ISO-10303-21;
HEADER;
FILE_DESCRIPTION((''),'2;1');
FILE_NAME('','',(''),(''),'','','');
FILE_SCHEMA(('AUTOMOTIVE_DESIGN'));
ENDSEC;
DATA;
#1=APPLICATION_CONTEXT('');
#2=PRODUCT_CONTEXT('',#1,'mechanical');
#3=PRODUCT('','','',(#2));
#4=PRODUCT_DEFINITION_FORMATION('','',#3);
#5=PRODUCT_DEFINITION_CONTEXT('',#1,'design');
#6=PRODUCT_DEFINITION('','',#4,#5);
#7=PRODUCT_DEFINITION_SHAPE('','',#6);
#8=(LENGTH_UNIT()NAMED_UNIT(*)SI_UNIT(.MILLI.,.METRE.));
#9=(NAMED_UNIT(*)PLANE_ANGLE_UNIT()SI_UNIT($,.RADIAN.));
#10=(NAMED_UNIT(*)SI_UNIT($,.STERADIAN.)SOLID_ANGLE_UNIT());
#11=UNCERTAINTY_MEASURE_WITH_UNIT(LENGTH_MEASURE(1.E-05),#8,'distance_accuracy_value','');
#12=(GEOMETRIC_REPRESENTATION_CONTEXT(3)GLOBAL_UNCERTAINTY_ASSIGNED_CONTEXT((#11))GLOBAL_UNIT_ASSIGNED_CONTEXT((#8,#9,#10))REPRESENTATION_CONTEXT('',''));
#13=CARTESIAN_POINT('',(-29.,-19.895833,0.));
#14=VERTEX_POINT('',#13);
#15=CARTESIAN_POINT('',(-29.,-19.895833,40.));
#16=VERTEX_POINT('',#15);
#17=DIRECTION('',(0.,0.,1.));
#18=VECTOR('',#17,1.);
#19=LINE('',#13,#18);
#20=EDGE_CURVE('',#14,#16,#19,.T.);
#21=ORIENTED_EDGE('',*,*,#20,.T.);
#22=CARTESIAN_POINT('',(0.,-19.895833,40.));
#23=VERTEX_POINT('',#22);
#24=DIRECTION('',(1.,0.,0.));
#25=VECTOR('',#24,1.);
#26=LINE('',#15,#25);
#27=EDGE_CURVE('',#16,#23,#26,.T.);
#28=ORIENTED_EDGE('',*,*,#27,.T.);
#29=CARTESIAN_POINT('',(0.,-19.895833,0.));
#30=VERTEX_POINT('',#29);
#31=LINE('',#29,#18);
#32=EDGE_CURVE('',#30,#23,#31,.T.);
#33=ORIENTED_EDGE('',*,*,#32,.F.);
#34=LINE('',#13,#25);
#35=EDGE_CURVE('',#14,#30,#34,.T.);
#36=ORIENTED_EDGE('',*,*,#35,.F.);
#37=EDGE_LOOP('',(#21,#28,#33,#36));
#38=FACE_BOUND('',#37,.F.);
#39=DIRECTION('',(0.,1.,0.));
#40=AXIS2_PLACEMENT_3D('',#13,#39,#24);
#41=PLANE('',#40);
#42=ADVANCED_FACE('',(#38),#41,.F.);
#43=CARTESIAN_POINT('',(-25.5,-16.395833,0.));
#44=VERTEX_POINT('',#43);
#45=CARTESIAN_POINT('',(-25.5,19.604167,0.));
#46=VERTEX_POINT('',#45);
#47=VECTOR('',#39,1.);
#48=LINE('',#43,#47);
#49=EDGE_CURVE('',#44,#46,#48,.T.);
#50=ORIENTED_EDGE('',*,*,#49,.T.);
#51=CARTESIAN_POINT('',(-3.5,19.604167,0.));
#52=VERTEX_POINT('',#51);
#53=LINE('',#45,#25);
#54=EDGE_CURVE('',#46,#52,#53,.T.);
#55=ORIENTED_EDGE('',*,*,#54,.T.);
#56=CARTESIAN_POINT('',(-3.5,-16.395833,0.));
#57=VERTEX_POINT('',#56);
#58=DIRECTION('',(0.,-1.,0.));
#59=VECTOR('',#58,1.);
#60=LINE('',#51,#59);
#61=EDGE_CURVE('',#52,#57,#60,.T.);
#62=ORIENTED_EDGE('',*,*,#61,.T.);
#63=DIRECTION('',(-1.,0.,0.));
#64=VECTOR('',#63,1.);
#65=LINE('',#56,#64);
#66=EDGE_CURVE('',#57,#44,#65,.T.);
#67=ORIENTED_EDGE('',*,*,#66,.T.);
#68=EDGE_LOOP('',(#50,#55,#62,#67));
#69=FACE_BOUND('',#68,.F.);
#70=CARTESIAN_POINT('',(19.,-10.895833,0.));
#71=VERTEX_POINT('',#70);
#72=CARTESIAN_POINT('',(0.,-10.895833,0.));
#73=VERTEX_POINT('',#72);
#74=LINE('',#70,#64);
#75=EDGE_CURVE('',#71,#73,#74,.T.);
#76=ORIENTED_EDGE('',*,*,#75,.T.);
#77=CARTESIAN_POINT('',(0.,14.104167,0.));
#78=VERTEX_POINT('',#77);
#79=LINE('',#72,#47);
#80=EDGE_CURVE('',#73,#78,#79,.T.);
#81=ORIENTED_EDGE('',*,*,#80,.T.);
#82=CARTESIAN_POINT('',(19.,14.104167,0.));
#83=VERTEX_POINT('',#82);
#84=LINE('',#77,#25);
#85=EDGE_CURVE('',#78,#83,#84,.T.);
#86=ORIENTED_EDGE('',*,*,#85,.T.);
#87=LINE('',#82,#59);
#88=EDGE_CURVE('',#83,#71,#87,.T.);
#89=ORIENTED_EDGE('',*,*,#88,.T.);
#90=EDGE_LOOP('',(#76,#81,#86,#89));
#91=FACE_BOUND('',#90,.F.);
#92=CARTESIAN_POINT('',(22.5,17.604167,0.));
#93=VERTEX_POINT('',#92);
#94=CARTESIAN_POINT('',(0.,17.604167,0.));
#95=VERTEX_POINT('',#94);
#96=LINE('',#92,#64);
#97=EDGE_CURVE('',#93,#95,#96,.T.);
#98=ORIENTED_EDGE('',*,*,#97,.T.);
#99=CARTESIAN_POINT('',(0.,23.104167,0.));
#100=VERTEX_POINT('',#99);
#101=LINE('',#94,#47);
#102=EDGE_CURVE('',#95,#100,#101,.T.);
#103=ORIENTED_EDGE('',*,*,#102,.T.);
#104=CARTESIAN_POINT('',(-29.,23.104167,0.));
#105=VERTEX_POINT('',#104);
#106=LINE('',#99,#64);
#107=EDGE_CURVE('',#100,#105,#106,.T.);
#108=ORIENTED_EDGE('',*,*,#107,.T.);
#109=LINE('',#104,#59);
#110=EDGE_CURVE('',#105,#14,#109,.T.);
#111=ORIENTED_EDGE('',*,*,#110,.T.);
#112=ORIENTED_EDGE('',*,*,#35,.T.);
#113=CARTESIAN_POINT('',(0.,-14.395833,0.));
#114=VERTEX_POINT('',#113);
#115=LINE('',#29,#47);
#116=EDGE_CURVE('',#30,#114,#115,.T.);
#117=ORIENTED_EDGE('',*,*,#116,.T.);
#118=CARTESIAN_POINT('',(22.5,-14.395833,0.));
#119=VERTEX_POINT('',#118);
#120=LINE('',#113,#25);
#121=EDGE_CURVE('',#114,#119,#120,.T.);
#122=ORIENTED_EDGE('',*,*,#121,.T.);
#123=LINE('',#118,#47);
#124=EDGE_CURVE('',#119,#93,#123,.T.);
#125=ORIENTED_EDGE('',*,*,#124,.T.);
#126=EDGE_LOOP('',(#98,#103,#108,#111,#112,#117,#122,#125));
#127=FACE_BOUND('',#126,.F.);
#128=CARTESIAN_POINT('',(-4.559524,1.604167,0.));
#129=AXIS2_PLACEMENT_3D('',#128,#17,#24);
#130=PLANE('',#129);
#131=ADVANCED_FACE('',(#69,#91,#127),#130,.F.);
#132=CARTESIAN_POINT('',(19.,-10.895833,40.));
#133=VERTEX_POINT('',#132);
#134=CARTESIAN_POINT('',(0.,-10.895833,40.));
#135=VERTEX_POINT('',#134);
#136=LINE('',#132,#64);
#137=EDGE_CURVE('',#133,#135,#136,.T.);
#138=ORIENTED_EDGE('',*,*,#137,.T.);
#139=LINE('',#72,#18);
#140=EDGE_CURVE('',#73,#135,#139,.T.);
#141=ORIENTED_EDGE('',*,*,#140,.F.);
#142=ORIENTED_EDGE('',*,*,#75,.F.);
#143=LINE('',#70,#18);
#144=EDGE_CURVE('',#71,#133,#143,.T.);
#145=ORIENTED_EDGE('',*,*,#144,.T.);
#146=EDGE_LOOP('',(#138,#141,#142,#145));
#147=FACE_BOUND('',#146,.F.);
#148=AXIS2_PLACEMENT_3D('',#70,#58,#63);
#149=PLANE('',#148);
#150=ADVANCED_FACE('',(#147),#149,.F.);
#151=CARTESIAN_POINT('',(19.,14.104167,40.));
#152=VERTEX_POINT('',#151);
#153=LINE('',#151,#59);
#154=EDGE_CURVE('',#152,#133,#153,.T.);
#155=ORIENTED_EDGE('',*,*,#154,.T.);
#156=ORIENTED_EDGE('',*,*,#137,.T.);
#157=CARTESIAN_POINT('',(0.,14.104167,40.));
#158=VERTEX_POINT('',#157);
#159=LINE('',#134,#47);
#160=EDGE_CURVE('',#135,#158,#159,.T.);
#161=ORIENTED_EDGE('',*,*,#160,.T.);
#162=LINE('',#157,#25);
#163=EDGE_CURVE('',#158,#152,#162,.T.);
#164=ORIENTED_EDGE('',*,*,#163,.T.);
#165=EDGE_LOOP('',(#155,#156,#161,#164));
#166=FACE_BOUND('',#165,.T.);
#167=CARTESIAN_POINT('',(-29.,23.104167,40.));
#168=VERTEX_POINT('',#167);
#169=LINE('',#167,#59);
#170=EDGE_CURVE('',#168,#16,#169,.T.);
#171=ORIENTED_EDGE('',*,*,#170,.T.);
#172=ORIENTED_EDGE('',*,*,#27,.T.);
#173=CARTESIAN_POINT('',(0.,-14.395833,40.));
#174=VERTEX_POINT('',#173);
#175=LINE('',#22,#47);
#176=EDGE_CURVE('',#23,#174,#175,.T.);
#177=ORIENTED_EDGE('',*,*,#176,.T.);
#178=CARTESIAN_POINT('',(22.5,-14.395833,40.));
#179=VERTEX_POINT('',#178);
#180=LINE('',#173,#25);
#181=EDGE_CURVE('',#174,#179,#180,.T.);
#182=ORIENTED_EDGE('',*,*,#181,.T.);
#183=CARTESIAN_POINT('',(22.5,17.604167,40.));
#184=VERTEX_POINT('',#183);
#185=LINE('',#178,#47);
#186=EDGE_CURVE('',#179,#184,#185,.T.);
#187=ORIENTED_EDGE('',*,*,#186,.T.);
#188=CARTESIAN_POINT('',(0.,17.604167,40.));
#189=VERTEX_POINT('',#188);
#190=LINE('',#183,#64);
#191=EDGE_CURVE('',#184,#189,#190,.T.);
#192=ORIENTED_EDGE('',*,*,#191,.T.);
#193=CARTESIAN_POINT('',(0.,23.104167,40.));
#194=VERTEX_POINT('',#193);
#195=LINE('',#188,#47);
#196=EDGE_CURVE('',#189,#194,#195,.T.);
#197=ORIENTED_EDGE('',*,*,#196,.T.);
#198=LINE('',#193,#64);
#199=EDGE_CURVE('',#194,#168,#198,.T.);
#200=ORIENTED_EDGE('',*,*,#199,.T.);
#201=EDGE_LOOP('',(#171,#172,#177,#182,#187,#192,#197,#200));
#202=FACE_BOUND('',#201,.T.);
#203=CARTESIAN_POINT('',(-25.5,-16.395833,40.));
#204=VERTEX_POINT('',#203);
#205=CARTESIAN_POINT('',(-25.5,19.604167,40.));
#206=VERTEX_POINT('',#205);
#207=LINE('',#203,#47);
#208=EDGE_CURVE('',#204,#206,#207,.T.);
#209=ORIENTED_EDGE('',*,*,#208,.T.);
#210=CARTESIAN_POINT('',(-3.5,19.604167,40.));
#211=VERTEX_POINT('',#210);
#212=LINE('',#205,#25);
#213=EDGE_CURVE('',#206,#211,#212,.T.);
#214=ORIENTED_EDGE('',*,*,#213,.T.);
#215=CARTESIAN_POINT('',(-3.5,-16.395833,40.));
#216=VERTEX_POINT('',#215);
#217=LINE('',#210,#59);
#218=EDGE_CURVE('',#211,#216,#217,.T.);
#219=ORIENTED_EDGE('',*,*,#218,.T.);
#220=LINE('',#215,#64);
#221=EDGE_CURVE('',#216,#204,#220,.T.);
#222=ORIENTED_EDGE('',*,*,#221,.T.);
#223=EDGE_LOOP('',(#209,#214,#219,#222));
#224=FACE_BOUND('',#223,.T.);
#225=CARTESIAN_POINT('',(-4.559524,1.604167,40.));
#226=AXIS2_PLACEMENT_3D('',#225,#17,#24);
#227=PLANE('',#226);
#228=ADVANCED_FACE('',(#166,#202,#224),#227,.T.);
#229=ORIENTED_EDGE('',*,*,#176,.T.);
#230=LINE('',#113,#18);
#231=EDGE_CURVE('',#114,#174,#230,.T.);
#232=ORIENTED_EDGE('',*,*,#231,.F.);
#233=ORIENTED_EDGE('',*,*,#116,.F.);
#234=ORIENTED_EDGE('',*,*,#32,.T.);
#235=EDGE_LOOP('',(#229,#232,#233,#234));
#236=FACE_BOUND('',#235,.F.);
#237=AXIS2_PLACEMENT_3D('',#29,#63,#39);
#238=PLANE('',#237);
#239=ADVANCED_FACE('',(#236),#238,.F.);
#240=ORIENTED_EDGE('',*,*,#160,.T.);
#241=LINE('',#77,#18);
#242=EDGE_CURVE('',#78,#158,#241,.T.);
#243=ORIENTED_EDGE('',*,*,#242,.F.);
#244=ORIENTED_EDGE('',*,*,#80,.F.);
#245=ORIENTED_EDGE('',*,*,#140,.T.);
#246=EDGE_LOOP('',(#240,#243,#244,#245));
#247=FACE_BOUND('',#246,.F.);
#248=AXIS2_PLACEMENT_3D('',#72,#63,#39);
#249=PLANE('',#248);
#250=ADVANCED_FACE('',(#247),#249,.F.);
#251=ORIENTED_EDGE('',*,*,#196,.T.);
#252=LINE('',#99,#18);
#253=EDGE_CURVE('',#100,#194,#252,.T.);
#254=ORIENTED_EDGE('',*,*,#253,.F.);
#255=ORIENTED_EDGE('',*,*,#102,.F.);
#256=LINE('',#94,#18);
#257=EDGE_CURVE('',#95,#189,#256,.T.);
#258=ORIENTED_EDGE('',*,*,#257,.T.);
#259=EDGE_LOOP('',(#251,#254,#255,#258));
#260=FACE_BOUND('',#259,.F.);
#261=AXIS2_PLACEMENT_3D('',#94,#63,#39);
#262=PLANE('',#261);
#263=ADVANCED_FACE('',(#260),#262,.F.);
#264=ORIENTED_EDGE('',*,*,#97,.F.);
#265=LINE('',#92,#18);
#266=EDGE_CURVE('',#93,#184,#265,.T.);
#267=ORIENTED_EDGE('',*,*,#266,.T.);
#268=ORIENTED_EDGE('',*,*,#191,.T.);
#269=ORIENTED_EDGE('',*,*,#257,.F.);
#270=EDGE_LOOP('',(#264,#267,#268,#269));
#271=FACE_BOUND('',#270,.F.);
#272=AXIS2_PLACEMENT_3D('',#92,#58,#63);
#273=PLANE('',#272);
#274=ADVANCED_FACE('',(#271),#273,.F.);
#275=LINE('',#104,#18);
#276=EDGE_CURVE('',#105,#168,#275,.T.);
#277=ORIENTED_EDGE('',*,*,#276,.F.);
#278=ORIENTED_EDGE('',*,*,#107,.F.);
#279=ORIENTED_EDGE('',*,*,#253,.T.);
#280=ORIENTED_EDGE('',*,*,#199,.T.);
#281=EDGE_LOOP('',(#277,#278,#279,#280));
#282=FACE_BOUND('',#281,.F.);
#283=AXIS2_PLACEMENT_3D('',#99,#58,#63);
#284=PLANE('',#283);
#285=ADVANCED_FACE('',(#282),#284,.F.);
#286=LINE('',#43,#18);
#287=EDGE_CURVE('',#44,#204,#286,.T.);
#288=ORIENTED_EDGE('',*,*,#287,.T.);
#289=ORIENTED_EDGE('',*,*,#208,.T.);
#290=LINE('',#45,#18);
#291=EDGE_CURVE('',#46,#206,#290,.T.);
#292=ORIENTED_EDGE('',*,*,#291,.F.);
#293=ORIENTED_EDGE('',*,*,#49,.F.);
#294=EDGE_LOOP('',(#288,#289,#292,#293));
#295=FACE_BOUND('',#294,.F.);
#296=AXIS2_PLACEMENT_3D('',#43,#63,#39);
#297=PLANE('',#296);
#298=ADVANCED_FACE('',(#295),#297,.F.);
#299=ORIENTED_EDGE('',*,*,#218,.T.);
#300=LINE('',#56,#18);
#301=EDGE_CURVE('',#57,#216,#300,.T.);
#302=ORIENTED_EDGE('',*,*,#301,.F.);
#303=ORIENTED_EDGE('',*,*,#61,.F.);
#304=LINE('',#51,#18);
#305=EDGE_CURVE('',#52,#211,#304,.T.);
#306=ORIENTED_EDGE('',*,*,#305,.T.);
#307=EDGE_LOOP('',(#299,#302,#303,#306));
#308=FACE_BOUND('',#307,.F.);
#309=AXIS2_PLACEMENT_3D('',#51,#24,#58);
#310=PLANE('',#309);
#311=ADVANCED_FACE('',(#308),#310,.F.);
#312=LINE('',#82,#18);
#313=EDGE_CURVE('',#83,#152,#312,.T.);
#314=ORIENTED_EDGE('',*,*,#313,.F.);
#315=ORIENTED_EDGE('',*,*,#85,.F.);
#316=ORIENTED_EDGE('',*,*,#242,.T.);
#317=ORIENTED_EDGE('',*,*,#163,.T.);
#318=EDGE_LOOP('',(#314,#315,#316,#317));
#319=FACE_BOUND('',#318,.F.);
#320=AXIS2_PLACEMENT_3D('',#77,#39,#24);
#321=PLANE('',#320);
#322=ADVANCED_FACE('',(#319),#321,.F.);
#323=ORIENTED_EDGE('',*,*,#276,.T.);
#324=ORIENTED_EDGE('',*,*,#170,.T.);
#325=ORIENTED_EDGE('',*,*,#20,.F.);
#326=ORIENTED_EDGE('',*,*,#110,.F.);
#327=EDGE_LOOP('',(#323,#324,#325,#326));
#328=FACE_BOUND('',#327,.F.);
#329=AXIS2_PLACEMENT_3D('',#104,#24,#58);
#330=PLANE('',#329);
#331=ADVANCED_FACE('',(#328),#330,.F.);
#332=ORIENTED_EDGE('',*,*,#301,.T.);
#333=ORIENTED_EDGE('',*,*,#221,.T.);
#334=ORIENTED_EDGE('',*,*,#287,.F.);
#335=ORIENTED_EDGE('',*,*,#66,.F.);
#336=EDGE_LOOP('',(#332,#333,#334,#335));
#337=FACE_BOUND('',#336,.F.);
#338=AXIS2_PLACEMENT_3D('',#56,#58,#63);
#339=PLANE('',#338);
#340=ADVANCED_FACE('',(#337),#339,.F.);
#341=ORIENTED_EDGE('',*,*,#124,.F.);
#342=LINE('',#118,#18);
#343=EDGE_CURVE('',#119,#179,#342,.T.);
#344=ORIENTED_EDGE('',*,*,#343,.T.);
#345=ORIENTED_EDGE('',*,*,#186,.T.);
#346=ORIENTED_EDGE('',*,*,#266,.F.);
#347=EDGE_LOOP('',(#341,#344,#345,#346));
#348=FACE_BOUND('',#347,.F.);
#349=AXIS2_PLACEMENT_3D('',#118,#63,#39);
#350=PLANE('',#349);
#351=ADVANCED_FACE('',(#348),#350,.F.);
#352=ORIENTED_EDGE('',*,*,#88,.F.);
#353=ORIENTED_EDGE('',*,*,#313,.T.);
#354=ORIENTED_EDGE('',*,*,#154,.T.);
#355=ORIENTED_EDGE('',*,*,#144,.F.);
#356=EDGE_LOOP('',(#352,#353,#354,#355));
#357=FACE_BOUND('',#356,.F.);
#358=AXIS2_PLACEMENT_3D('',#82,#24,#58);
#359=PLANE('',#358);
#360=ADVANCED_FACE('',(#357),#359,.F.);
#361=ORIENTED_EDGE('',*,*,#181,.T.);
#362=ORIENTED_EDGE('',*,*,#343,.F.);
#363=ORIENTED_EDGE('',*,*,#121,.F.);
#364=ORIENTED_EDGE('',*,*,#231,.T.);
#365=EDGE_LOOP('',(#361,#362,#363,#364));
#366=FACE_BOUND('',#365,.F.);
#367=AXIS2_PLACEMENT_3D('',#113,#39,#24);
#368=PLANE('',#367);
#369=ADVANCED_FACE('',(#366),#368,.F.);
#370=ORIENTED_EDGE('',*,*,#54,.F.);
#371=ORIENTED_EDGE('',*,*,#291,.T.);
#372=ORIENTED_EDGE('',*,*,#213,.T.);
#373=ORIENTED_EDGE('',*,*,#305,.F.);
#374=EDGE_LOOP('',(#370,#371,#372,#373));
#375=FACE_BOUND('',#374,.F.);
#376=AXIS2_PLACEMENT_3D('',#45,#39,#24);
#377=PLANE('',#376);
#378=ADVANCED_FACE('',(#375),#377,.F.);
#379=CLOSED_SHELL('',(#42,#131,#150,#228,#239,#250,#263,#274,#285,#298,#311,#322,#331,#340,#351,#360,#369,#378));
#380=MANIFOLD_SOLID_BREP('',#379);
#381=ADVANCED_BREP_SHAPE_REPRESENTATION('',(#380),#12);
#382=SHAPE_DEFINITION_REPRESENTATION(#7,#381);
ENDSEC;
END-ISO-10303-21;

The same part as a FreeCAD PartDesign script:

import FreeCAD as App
import Part
import Sketcher
from FreeCAD import Vector
Q = App.Units.Quantity

doc = App.newDocument("Part")
body = doc.addObject("PartDesign::Body", "Body")

sketch1 = body.newObject("Sketcher::SketchObject", "Sketch")
sketch1.AttachmentSupport = (doc.getObject("XY_Plane"), [""])
sketch1.MapMode = "FlatFace"
sketch1.addGeometry(Part.LineSegment(Vector(22.5, 17.604167, 0), Vector(0, 17.604167, 0)), False)
sketch1.addGeometry(Part.LineSegment(Vector(0, 17.604167, 0), Vector(0, 23.104167, 0)), False)
sketch1.addGeometry(Part.LineSegment(Vector(0, 23.104167, 0), Vector(-29, 23.104167, 0)), False)
sketch1.addGeometry(Part.LineSegment(Vector(-29, 23.104167, 0), Vector(-29, -19.895833, 0)), False)
sketch1.addGeometry(Part.LineSegment(Vector(-29, -19.895833, 0), Vector(0, -19.895833, 0)), False)
sketch1.addGeometry(Part.LineSegment(Vector(0, -19.895833, 0), Vector(0, -14.395833, 0)), False)
sketch1.addGeometry(Part.LineSegment(Vector(0, -14.395833, 0), Vector(22.5, -14.395833, 0)), False)
sketch1.addGeometry(Part.LineSegment(Vector(22.5, -14.395833, 0), Vector(22.5, 17.604167, 0)), False)
sketch1.addGeometry(Part.LineSegment(Vector(-3.5, 19.604167, 0), Vector(-3.5, -16.395833, 0)), False)
sketch1.addGeometry(Part.LineSegment(Vector(-3.5, -16.395833, 0), Vector(-25.5, -16.395833, 0)), False)
sketch1.addGeometry(Part.LineSegment(Vector(-25.5, -16.395833, 0), Vector(-25.5, 19.604167, 0)), False)
sketch1.addGeometry(Part.LineSegment(Vector(-25.5, 19.604167, 0), Vector(-3.5, 19.604167, 0)), False)
sketch1.addGeometry(Part.LineSegment(Vector(19, 14.104167, 0), Vector(19, -10.895833, 0)), False)
sketch1.addGeometry(Part.LineSegment(Vector(19, -10.895833, 0), Vector(0, -10.895833, 0)), False)
sketch1.addGeometry(Part.LineSegment(Vector(0, -10.895833, 0), Vector(0, 14.104167, 0)), False)
sketch1.addGeometry(Part.LineSegment(Vector(0, 14.104167, 0), Vector(19, 14.104167, 0)), False)
sketch1.addConstraint(Sketcher.Constraint("Coincident", 0, 2, 1, 1))
sketch1.addConstraint(Sketcher.Constraint("Coincident", 1, 2, 2, 1))
sketch1.addConstraint(Sketcher.Constraint("Coincident", 2, 2, 3, 1))
sketch1.addConstraint(Sketcher.Constraint("Coincident", 3, 2, 4, 1))
sketch1.addConstraint(Sketcher.Constraint("Coincident", 4, 2, 5, 1))
sketch1.addConstraint(Sketcher.Constraint("Coincident", 5, 2, 6, 1))
sketch1.addConstraint(Sketcher.Constraint("Coincident", 6, 2, 7, 1))
sketch1.addConstraint(Sketcher.Constraint("Coincident", 7, 2, 0, 1))
sketch1.addConstraint(Sketcher.Constraint("Coincident", 8, 2, 9, 1))
sketch1.addConstraint(Sketcher.Constraint("Coincident", 9, 2, 10, 1))
sketch1.addConstraint(Sketcher.Constraint("Coincident", 10, 2, 11, 1))
sketch1.addConstraint(Sketcher.Constraint("Coincident", 11, 2, 8, 1))
sketch1.addConstraint(Sketcher.Constraint("Coincident", 12, 2, 13, 1))
sketch1.addConstraint(Sketcher.Constraint("Coincident", 13, 2, 14, 1))
sketch1.addConstraint(Sketcher.Constraint("Coincident", 14, 2, 15, 1))
sketch1.addConstraint(Sketcher.Constraint("Coincident", 15, 2, 12, 1))
sketch1.addConstraint(Sketcher.Constraint("Horizontal", 0))
sketch1.addConstraint(Sketcher.Constraint("Vertical", 1))
sketch1.addConstraint(Sketcher.Constraint("Horizontal", 2))
sketch1.addConstraint(Sketcher.Constraint("Vertical", 3))
sketch1.addConstraint(Sketcher.Constraint("Horizontal", 4))
sketch1.addConstraint(Sketcher.Constraint("Vertical", 5))
sketch1.addConstraint(Sketcher.Constraint("Horizontal", 6))
sketch1.addConstraint(Sketcher.Constraint("Vertical", 7))
sketch1.addConstraint(Sketcher.Constraint("Vertical", 8))
sketch1.addConstraint(Sketcher.Constraint("Horizontal", 9))
sketch1.addConstraint(Sketcher.Constraint("Vertical", 10))
sketch1.addConstraint(Sketcher.Constraint("Horizontal", 11))
sketch1.addConstraint(Sketcher.Constraint("Vertical", 12))
sketch1.addConstraint(Sketcher.Constraint("Horizontal", 13))
sketch1.addConstraint(Sketcher.Constraint("Vertical", 14))
sketch1.addConstraint(Sketcher.Constraint("Horizontal", 15))
sketch1.addConstraint(Sketcher.Constraint("PointOnObject", 0, 2, -2))
sketch1.addConstraint(Sketcher.Constraint("PointOnObject", 4, 2, -2))
sketch1.addConstraint(Sketcher.Constraint("PointOnObject", 13, 2, -2))
sketch1.addConstraint(Sketcher.Constraint("Equal", 1, 5))
sketch1.addConstraint(Sketcher.Constraint("DistanceX", 2, 2, 2, 1, Q("29 mm")))
sketch1.addConstraint(Sketcher.Constraint("DistanceX", 9, 2, 9, 1, Q("22 mm")))
sketch1.addConstraint(Sketcher.Constraint("DistanceX", 13, 2, 13, 1, Q("19 mm")))
sketch1.addConstraint(Sketcher.Constraint("DistanceY", 3, 2, 3, 1, Q("43 mm")))
sketch1.addConstraint(Sketcher.Constraint("DistanceY", 7, 1, 7, 2, Q("32 mm")))
sketch1.addConstraint(Sketcher.Constraint("DistanceY", 8, 2, 8, 1, Q("36 mm")))
sketch1.addConstraint(Sketcher.Constraint("DistanceY", 12, 2, 12, 1, Q("25 mm")))
sketch1.addConstraint(Sketcher.Constraint("DistanceX", 0, 2, 0, 1, Q("22.5 mm")))
sketch1.addConstraint(Sketcher.Constraint("DistanceY", 8, 2, 5, 2, Q("2 mm")))
sketch1.addConstraint(Sketcher.Constraint("DistanceX", 8, 2, 6, 2, Q("26 mm")))
sketch1.addConstraint(Sketcher.Constraint("DistanceY", 4, 2, 12, 2, Q("9 mm")))
sketch1.addConstraint(Sketcher.Constraint("DistanceY", -1, 1, 0, 2, Q("17.604167 mm")))
pad1 = body.newObject("PartDesign::Pad", "Pad")
pad1.Profile = sketch1
pad1.Length = 40

doc.recompute()
